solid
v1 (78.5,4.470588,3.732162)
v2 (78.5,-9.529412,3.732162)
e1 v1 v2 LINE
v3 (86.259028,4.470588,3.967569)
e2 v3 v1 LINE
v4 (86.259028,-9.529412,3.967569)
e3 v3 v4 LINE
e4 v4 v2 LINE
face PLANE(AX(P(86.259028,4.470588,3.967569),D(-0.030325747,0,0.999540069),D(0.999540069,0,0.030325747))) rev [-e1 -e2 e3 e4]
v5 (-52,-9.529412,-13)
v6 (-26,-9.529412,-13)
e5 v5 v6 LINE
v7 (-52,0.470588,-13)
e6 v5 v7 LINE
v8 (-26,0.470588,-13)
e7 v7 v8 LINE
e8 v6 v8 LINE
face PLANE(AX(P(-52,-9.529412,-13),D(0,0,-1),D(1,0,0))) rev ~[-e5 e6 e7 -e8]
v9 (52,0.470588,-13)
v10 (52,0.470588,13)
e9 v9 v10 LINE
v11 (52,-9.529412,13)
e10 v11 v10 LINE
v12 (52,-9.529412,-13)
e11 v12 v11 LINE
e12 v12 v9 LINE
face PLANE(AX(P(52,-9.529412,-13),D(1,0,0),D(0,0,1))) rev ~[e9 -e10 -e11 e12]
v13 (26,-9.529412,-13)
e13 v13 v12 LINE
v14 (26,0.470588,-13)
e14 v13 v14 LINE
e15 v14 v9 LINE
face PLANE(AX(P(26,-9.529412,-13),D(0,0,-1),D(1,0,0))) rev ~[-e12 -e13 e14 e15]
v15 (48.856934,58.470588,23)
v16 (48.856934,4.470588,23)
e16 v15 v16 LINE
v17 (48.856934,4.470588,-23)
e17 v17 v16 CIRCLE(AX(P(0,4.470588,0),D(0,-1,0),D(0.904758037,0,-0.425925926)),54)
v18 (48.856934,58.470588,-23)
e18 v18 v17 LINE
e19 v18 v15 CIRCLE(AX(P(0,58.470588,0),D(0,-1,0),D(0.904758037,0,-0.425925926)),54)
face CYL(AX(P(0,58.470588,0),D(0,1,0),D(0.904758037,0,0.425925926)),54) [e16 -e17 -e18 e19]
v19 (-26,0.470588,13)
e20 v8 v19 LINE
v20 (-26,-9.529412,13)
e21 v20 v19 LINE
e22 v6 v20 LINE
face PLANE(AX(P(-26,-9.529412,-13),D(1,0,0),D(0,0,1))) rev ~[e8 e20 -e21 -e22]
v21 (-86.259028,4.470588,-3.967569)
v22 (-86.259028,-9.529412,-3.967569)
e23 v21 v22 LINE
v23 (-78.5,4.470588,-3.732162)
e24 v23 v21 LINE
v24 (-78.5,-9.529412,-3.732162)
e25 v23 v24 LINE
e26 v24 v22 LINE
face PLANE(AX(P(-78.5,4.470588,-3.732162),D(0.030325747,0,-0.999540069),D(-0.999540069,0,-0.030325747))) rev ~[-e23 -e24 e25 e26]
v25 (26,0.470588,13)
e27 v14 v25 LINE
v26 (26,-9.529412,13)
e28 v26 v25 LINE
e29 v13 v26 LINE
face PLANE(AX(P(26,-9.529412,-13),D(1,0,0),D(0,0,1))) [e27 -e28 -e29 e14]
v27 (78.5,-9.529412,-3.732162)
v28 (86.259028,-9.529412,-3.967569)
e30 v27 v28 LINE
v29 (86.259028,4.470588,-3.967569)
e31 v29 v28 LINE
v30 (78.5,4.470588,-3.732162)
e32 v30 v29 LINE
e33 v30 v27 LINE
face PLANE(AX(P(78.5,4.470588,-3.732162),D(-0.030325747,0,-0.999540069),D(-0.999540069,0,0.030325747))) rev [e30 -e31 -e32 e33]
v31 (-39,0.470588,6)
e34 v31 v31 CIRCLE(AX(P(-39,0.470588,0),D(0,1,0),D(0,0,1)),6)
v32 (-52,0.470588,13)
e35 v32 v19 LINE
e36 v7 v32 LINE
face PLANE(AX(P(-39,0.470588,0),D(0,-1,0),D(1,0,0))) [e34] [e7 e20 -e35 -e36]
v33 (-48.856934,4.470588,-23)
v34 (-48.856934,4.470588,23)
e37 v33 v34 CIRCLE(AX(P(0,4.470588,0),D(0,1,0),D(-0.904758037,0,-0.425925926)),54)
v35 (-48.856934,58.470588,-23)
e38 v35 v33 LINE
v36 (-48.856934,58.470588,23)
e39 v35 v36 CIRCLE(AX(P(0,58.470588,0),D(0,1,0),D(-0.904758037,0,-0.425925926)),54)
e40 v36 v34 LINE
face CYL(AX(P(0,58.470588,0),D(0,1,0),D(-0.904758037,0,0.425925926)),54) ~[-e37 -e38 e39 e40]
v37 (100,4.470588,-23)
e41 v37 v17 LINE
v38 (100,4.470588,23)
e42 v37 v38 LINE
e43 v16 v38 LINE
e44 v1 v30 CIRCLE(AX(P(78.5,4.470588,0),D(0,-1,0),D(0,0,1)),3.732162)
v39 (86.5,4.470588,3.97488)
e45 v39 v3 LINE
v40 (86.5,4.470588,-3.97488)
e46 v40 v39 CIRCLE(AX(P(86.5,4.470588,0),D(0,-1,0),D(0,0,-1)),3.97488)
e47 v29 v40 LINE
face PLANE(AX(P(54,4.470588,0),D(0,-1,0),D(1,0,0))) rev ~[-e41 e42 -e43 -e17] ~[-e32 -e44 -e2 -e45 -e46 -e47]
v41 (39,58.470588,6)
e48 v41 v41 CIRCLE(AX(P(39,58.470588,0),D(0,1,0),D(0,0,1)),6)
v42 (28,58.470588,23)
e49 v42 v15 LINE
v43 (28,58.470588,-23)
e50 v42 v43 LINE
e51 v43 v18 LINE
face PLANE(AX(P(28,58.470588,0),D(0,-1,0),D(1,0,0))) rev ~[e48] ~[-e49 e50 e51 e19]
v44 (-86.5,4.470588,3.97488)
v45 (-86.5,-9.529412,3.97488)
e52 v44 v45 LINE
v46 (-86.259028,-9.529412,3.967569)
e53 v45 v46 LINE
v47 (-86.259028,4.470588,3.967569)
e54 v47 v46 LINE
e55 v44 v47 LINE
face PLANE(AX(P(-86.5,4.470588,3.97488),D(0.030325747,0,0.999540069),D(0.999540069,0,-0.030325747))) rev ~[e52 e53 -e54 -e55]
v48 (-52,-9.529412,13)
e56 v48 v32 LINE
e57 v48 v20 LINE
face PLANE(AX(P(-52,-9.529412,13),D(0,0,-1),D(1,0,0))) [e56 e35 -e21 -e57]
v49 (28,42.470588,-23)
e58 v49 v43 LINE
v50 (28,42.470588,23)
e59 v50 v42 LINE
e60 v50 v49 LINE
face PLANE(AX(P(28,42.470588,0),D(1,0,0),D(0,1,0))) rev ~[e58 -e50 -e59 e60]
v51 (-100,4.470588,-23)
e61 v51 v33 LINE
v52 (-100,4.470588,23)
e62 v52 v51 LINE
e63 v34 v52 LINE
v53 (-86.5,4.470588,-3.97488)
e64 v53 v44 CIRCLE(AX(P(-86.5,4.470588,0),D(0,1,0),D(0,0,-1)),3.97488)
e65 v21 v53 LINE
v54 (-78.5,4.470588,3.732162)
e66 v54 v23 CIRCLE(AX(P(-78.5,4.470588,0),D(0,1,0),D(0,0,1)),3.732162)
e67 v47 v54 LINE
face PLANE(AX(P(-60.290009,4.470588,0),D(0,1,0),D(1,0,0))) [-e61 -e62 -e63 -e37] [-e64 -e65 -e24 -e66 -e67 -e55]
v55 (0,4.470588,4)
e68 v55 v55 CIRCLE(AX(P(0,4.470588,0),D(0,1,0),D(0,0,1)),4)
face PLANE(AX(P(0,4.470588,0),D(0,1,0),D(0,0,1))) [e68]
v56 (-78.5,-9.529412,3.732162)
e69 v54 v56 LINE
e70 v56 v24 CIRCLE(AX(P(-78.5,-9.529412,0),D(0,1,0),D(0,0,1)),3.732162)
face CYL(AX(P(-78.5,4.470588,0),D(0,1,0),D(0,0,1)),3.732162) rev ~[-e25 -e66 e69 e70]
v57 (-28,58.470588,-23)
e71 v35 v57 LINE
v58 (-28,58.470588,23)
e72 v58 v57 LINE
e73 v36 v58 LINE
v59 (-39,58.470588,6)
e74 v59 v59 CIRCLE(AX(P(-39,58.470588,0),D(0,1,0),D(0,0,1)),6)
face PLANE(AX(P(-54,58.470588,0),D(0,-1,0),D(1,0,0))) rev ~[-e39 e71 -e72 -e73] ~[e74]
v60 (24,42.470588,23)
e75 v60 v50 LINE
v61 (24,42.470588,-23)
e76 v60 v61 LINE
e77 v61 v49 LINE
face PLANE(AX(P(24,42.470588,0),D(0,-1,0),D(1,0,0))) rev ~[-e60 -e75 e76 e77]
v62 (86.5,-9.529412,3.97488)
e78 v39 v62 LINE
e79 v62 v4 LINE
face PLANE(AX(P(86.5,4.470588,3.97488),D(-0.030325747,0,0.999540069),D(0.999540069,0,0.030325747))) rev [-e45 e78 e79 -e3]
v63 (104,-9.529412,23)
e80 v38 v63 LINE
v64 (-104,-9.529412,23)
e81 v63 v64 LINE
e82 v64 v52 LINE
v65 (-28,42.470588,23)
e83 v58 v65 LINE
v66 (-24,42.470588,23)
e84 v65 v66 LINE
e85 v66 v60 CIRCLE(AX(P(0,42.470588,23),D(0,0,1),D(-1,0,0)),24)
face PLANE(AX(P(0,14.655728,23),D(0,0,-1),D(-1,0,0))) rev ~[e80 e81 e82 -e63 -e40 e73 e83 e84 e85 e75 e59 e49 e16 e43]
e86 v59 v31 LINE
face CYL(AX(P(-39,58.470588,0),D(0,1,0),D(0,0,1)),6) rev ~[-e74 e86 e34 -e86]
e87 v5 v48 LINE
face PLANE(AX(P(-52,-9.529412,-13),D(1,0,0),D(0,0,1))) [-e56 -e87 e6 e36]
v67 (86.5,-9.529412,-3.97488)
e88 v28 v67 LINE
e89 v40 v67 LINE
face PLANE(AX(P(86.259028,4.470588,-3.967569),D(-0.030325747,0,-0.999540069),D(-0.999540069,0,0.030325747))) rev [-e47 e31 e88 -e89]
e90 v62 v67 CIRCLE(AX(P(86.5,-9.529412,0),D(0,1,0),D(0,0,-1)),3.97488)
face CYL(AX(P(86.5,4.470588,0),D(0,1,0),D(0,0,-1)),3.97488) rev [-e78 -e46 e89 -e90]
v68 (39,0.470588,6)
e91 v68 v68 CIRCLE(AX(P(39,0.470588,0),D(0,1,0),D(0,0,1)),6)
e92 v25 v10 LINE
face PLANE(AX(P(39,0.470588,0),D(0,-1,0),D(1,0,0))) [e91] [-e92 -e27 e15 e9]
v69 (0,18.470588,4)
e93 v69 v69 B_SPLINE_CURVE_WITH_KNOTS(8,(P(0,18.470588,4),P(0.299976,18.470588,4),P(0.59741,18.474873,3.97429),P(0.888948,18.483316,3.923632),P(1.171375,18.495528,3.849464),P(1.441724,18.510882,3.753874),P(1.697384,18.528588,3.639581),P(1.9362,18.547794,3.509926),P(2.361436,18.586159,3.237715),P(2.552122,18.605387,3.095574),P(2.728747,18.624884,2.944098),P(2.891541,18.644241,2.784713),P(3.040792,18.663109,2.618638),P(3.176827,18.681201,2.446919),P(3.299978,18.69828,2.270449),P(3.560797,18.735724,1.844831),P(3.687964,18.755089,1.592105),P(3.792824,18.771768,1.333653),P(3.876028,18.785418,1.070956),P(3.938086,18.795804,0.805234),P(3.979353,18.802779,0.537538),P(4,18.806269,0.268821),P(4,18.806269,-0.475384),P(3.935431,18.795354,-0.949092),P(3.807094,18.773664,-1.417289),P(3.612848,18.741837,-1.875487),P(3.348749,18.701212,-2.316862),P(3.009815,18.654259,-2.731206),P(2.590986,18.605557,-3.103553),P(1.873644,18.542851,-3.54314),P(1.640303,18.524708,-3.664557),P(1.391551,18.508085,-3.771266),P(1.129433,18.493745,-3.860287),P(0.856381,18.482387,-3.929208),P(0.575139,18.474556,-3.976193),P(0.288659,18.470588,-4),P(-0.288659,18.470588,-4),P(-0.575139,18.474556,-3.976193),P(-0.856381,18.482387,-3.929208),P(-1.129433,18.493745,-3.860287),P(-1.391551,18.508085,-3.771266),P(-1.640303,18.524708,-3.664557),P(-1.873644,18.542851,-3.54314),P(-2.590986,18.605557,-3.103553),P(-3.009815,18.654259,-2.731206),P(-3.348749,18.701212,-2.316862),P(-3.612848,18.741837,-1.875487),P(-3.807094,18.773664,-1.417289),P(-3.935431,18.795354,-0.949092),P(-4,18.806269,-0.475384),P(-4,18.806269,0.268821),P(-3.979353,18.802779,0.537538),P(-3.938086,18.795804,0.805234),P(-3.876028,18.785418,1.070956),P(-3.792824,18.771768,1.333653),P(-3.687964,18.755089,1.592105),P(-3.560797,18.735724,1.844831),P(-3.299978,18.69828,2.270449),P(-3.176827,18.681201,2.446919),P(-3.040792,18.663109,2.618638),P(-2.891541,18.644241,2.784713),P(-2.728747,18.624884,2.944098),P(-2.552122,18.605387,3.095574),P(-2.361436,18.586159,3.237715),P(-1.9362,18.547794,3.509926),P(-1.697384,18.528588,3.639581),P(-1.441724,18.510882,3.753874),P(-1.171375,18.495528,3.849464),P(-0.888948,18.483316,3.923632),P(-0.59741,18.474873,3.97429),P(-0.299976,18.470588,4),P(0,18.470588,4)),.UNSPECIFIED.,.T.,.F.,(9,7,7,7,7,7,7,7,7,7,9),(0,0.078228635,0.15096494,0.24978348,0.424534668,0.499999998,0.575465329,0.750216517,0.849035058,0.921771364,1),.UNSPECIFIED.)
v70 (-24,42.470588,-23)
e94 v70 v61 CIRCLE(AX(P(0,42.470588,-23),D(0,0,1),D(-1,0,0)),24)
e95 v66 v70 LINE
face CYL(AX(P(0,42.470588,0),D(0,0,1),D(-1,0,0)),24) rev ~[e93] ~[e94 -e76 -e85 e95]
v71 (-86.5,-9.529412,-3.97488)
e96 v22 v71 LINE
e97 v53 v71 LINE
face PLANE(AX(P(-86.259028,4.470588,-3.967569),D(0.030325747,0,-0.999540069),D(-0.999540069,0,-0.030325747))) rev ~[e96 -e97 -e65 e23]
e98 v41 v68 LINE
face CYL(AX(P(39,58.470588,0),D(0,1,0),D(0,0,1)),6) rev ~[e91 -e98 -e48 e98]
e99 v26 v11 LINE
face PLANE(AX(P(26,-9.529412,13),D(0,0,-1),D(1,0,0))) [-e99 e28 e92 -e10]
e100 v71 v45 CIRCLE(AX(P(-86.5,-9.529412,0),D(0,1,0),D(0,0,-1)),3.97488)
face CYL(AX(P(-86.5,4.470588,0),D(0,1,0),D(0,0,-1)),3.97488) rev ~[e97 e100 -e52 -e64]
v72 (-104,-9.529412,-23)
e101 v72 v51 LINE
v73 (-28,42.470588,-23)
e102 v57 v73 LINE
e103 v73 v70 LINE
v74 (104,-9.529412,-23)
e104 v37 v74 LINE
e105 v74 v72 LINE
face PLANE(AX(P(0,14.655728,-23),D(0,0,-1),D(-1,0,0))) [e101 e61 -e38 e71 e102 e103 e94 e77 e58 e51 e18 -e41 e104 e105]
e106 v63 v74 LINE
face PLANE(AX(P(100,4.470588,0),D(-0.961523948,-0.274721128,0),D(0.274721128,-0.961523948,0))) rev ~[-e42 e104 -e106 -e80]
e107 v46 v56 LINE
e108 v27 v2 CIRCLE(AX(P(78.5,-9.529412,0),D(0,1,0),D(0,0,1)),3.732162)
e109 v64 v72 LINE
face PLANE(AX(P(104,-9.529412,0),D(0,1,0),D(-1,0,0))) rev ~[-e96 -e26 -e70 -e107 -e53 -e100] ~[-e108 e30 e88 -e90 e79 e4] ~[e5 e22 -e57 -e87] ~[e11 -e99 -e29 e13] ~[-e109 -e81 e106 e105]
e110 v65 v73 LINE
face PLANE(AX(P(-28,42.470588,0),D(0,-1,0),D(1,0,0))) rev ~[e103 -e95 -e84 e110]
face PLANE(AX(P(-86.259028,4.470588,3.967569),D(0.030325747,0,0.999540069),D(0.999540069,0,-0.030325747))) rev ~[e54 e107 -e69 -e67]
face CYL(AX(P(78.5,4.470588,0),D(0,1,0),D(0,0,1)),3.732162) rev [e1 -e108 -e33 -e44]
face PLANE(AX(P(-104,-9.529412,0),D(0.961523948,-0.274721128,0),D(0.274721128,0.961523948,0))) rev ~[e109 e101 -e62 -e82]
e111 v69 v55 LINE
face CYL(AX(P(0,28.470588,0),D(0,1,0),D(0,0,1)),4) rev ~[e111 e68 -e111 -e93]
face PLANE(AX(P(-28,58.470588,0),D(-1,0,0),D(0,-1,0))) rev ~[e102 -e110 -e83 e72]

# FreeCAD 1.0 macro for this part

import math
import FreeCAD as App
import Part
import Sketcher
from FreeCAD import Vector


def add_polygon(sketch, points):
    """Adds a closed chain of lines whose ends are joined by coincident constraints."""
    first, n = sketch.GeometryCount, len(points)
    for a, b in zip(points, points[1:] + points[:1]):
        sketch.addGeometry(Part.LineSegment(App.Vector(*a, 0), App.Vector(*b, 0)), False)
    for i in range(n):
        sketch.addConstraint(Sketcher.Constraint("Coincident", first + i, 2, first + (i + 1) % n, 1))

doc = App.newDocument("Part")
params = doc.addObject("Spreadsheet::Sheet", "Params")
for row, (alias, value) in enumerate([
    ("sketch1_radius", "24 mm"),
    ("sketch1_width", "46 mm"),
    ("sketch1_width2", "26 mm"),
    ("sketch1_width3", "4 mm"),
    ("sketch1_width4", "208 mm"),
    ("pad1_length", "46 mm"),
    ("sketch2_diameter", "12 mm"),
    ("sketch3_radius", "54 mm"),
    ("sketch3_height", "46 mm"),
    ("pocket2_length", "54 mm"),
    ("sketch5_diameter", "8 mm"),
    ("pocket4_length", "24 mm"),
    ("sketch6_width", "26 mm"),
    ("pocket5_length", "10 mm"),
], start=1):
    params.set(f"A{row}", alias)
    params.set(f"B{row}", "=" + value)
    params.setAlias(f"B{row}", alias)

body = doc.addObject("PartDesign::Body", "Body")

sketch1 = body.newObject("Sketcher::SketchObject", "Sketch")
sketch1.AttachmentSupport = (doc.getObject("XY_Plane"), [""])
sketch1.MapMode = "FlatFace"
sketch1.addGeometry([
    Part.LineSegment(Vector(104, -9.5, 0), Vector(100, 4.5, 0)),
    Part.LineSegment(Vector(100, 4.5, 0), Vector(54, 4.5, 0)),
    Part.LineSegment(Vector(54, 4.5, 0), Vector(54, 58.5, 0)),
    Part.LineSegment(Vector(54, 58.5, 0), Vector(28, 58.5, 0)),
    Part.LineSegment(Vector(28, 58.5, 0), Vector(28, 42.5, 0)),
    Part.LineSegment(Vector(28, 42.5, 0), Vector(24, 42.5, 0)),
    Part.ArcOfCircle(Part.Circle(Vector(0, 42.5, 0), Vector(0, 0, 1), 24), math.radians(180), math.radians(360)),
    Part.LineSegment(Vector(-24, 42.5, 0), Vector(-28, 42.5, 0)),
    Part.LineSegment(Vector(-28, 42.5, 0), Vector(-28, 58.5, 0)),
    Part.LineSegment(Vector(-28, 58.5, 0), Vector(-54, 58.5, 0)),
    Part.LineSegment(Vector(-54, 58.5, 0), Vector(-54, 4.5, 0)),
    Part.LineSegment(Vector(-54, 4.5, 0), Vector(-100, 4.5, 0)),
    Part.LineSegment(Vector(-100, 4.5, 0), Vector(-104, -9.5, 0)),
    Part.LineSegment(Vector(-104, -9.5, 0), Vector(104, -9.5, 0)),
], False)
sketch1.addConstraint([
    Sketcher.Constraint("Coincident", 0, 2, 1, 1),
    Sketcher.Constraint("Coincident", 1, 2, 2, 1),
    Sketcher.Constraint("Coincident", 2, 2, 3, 1),
    Sketcher.Constraint("Coincident", 3, 2, 4, 1),
    Sketcher.Constraint("Coincident", 4, 2, 5, 1),
    Sketcher.Constraint("Coincident", 5, 2, 6, 2),
    Sketcher.Constraint("Coincident", 6, 1, 7, 1),
    Sketcher.Constraint("Coincident", 7, 2, 8, 1),
    Sketcher.Constraint("Coincident", 8, 2, 9, 1),
    Sketcher.Constraint("Coincident", 9, 2, 10, 1),
    Sketcher.Constraint("Coincident", 10, 2, 11, 1),
    Sketcher.Constraint("Coincident", 11, 2, 12, 1),
    Sketcher.Constraint("Coincident", 12, 2, 13, 1),
    Sketcher.Constraint("Coincident", 13, 2, 0, 1),
    Sketcher.Constraint("Horizontal", 1),
    Sketcher.Constraint("Vertical", 2),
    Sketcher.Constraint("Horizontal", 3),
    Sketcher.Constraint("Vertical", 4),
    Sketcher.Constraint("Horizontal", 5),
    Sketcher.Constraint("Horizontal", 7),
    Sketcher.Constraint("Vertical", 8),
    Sketcher.Constraint("Horizontal", 9),
    Sketcher.Constraint("Vertical", 10),
    Sketcher.Constraint("Horizontal", 11),
    Sketcher.Constraint("Horizontal", 13),
    Sketcher.Constraint("Symmetric", 5, 2, 6, 1, -2),
    Sketcher.Constraint("Symmetric", 3, 2, 8, 2, -2),
    Sketcher.Constraint("Symmetric", 1, 2, 10, 2, -2),
    Sketcher.Constraint("Horizontal", 6, 3, 4, 2),
    Sketcher.Constraint("Equal", 1, 11),
    Sketcher.Constraint("Equal", 0, 12),
    Sketcher.Constraint("Radius", 6, 24.0),
    Sketcher.Constraint("DistanceX", 1, 2, 1, 1, 46.0),
    Sketcher.Constraint("DistanceX", 3, 2, 3, 1, 26.0),
    Sketcher.Constraint("DistanceX", 5, 2, 5, 1, 4.0),
    Sketcher.Constraint("DistanceX", 13, 1, 13, 2, 208.0),
    Sketcher.Constraint("DistanceY", 2, 1, 2, 2, 54.0),
    Sketcher.Constraint("DistanceY", 4, 2, 4, 1, 16.0),
    Sketcher.Constraint("DistanceY", 12, 2, 11, 2, 14.0),
    Sketcher.Constraint("DistanceY", -1, 1, 6, 3, 42.470588),
])
sketch1.setExpression("Constraints[31]", "Params.sketch1_radius")
sketch1.setExpression("Constraints[32]", "Params.sketch1_width")
sketch1.setExpression("Constraints[33]", "Params.sketch1_width2")
sketch1.setExpression("Constraints[34]", "Params.sketch1_width3")
sketch1.setExpression("Constraints[35]", "Params.sketch1_width4")
pad1 = body.newObject("PartDesign::Pad", "Pad")
pad1.Profile = sketch1
pad1.setExpression("Length", "Params.pad1_length")
pad1.Midplane = True

sketch2 = body.newObject("Sketcher::SketchObject", "Sketch001")
sketch2.AttachmentSupport = (doc.getObject("XZ_Plane"), [""])
sketch2.MapMode = "FlatFace"
sketch2.AttachmentOffset = App.Placement(Vector(0, 0, -58.470588), App.Rotation())
sketch2.addGeometry([
    Part.Circle(Vector(-39, 0, 0), Vector(0, 0, 1), 6),
    Part.Circle(Vector(39, 0, 0), Vector(0, 0, 1), 6),
], False)
sketch2.addConstraint([
    Sketcher.Constraint("Equal", 0, 1),
    Sketcher.Constraint("Symmetric", 0, 3, 1, 3, -1, 1),
    Sketcher.Constraint("PointOnObject", 0, 3, -1),
    Sketcher.Constraint("Diameter", 0, 12.0),
    Sketcher.Constraint("DistanceX", 0, 3, -1, 1, 39.0),
])
sketch2.setExpression("Constraints[3]", "Params.sketch2_diameter")
pocket1 = body.newObject("PartDesign::Pocket", "Pocket")
pocket1.Profile = sketch2
pocket1.Type = "ThroughAll"
pocket1.Reversed = True

sketch3 = body.newObject("Sketcher::SketchObject", "Sketch002")
sketch3.AttachmentSupport = (doc.getObject("XZ_Plane"), [""])
sketch3.MapMode = "FlatFace"
sketch3.AttachmentOffset = App.Placement(Vector(0, 0, -58.470588), App.Rotation())
sketch3.addGeometry([
    Part.LineSegment(Vector(-49, -23, 0), Vector(-70, -23, 0)),
    Part.LineSegment(Vector(-70, -23, 0), Vector(-70, 23, 0)),
    Part.LineSegment(Vector(-70, 23, 0), Vector(-49, 23, 0)),
    Part.ArcOfCircle(Part.Circle(Vector(0, 0, 0), Vector(0, 0, 1), 54), math.radians(155), math.radians(205)),
    Part.LineSegment(Vector(49, 23, 0), Vector(70, 23, 0)),
    Part.LineSegment(Vector(70, 23, 0), Vector(70, -23, 0)),
    Part.LineSegment(Vector(70, -23, 0), Vector(49, -23, 0)),
    Part.ArcOfCircle(Part.Circle(Vector(0, 0, 0), Vector(0, 0, 1), 54), math.radians(-25), math.radians(25)),
], False)
sketch3.addConstraint([
    Sketcher.Constraint("Coincident", 0, 2, 1, 1),
    Sketcher.Constraint("Coincident", 1, 2, 2, 1),
    Sketcher.Constraint("Coincident", 2, 2, 3, 1),
    Sketcher.Constraint("Coincident", 3, 2, 0, 1),
    Sketcher.Constraint("Coincident", 4, 2, 5, 1),
    Sketcher.Constraint("Coincident", 5, 2, 6, 1),
    Sketcher.Constraint("Coincident", 6, 2, 7, 1),
    Sketcher.Constraint("Coincident", 7, 2, 4, 1),
    Sketcher.Constraint("Horizontal", 0),
    Sketcher.Constraint("Vertical", 1),
    Sketcher.Constraint("Horizontal", 2),
    Sketcher.Constraint("Horizontal", 4),
    Sketcher.Constraint("Vertical", 5),
    Sketcher.Constraint("Horizontal", 6),
    Sketcher.Constraint("Coincident", 3, 3, -1, 1),
    Sketcher.Constraint("Coincident", 7, 3, -1, 1),
    Sketcher.Constraint("Equal", 3, 7),
    Sketcher.Constraint("Symmetric", 0, 2, 4, 2, -1, 1),
    Sketcher.Constraint("Horizontal", 2, 2, 4, 2),
    Sketcher.Constraint("Horizontal", 3, 2, 5, 2),
    Sketcher.Constraint("Radius", 3, 54.0),
    Sketcher.Constraint("DistanceY", 1, 1, 1, 2, 46.0),
    Sketcher.Constraint("DistanceX", 0, 2, 0, 1, 20.944715),
])
sketch3.setExpression("Constraints[20]", "Params.sketch3_radius")
sketch3.setExpression("Constraints[21]", "Params.sketch3_height")
pocket2 = body.newObject("PartDesign::Pocket", "Pocket001")
pocket2.Profile = sketch3
pocket2.setExpression("Length", "Params.pocket2_length")
pocket2.Reversed = True

sketch4 = body.newObject("Sketcher::SketchObject", "Sketch003")
sketch4.AttachmentSupport = (doc.getObject("XZ_Plane"), [""])
sketch4.MapMode = "FlatFace"
sketch4.AttachmentOffset = App.Placement(Vector(0, 0, -4.470588), App.Rotation())
sketch4.addGeometry([
    Part.LineSegment(Vector(-86.26, -3.97, 0), Vector(-86.5, -3.97, 0)),
    Part.ArcOfCircle(Part.Circle(Vector(-86.5, 0, 0), Vector(0, 0, 1), 3.97), math.radians(90), math.radians(270)),
    Part.LineSegment(Vector(-86.5, 3.97, 0), Vector(-86.26, 3.97, 0)),
    Part.LineSegment(Vector(-86.26, 3.97, 0), Vector(-78.5, 3.73, 0)),
    Part.ArcOfCircle(Part.Circle(Vector(-78.5, 0, 0), Vector(0, 0, 1), 3.73), math.radians(-90), math.radians(90)),
    Part.LineSegment(Vector(-78.5, -3.73, 0), Vector(-86.26, -3.97, 0)),
], False)
sketch4.addConstraint([
    Sketcher.Constraint("Coincident", 0, 2, 1, 2),
    Sketcher.Constraint("Coincident", 1, 1, 2, 1),
    Sketcher.Constraint("Coincident", 2, 2, 3, 1),
    Sketcher.Constraint("Coincident", 3, 2, 4, 2),
    Sketcher.Constraint("Coincident", 4, 1, 5, 1),
    Sketcher.Constraint("Coincident", 5, 2, 0, 1),
    Sketcher.Constraint("Symmetric", 0, 2, 1, 1, -1),
    Sketcher.Constraint("Symmetric", 3, 2, 4, 1, -1),
    Sketcher.Constraint("Symmetric", 2, 2, 5, 2, -1),
    Sketcher.Constraint("Parallel", 2, 3),
    Sketcher.Constraint("Vertical", 1, 3, 0, 2),
    Sketcher.Constraint("Vertical", 4, 3, 3, 2),
    Sketcher.Constraint("DistanceX", 1, 3, 4, 3, 8.0),
    Sketcher.Constraint("DistanceX", 1, 3, -1, 1, 86.5),
    Sketcher.Constraint("Radius", 1, 3.97488),
    Sketcher.Constraint("Radius", 4, 3.732162),
    Sketcher.Constraint("Distance", 3, 7.762599),
])
pocket3 = body.newObject("PartDesign::Pocket", "Pocket002")
pocket3.Profile = sketch4
pocket3.Type = "ThroughAll"
pocket3.Reversed = True
doc.recompute()

mirrored = body.newObject("PartDesign::Mirrored", "Mirrored")
mirrored.Originals = [pocket3]
mirrored.MirrorPlane = (doc.getObject("YZ_Plane"), [""])
body.Tip = mirrored

sketch5 = body.newObject("Sketcher::SketchObject", "Sketch004")
sketch5.AttachmentSupport = (doc.getObject("XZ_Plane"), [""])
sketch5.MapMode = "FlatFace"
sketch5.AttachmentOffset = App.Placement(Vector(0, 0, -28.470588), App.Rotation())
sketch5.addGeometry(Part.Circle(Vector(0, 0, 0), Vector(0, 0, 1), 4), False)
sketch5.addConstraint([
    Sketcher.Constraint("Coincident", 0, 3, -1, 1),
    Sketcher.Constraint("Diameter", 0, 8.0),
])
sketch5.setExpression("Constraints[1]", "Params.sketch5_diameter")
pocket4 = body.newObject("PartDesign::Pocket", "Pocket003")
pocket4.Profile = sketch5
pocket4.setExpression("Length", "Params.pocket4_length")
pocket4.Reversed = True

sketch6 = body.newObject("Sketcher::SketchObject", "Sketch005")
sketch6.AttachmentSupport = (doc.getObject("XZ_Plane"), [""])
sketch6.MapMode = "FlatFace"
sketch6.AttachmentOffset = App.Placement(Vector(0, 0, 9.529412), App.Rotation())
add_polygon(sketch6, [(-52, 13), (-52, -13), (-26, -13), (-26, 13)])
add_polygon(sketch6, [(26, 13), (26, -13), (52, -13), (52, 13)])
sketch6.addConstraint([
    Sketcher.Constraint("Vertical", 0),
    Sketcher.Constraint("Horizontal", 1),
    Sketcher.Constraint("Vertical", 2),
    Sketcher.Constraint("Horizontal", 3),
    Sketcher.Constraint("Vertical", 4),
    Sketcher.Constraint("Horizontal", 5),
    Sketcher.Constraint("Vertical", 6),
    Sketcher.Constraint("Horizontal", 7),
    Sketcher.Constraint("Symmetric", 2, 2, 4, 2, -1, 1),
    Sketcher.Constraint("Symmetric", 0, 2, 6, 2, -1, 1),
    Sketcher.Constraint("Horizontal", 1, 2, 4, 2),
    Sketcher.Constraint("Equal", 7, 0),
    Sketcher.Constraint("DistanceX", 1, 1, 1, 2, 26.0),
    Sketcher.Constraint("DistanceX", 0, 2, -1, 1, 52.0),
])
sketch6.setExpression("Constraints[20]", "Params.sketch6_width")
pocket5 = body.newObject("PartDesign::Pocket", "Pocket004")
pocket5.Profile = sketch6
pocket5.setExpression("Length", "Params.pocket5_length")

doc.recompute()
